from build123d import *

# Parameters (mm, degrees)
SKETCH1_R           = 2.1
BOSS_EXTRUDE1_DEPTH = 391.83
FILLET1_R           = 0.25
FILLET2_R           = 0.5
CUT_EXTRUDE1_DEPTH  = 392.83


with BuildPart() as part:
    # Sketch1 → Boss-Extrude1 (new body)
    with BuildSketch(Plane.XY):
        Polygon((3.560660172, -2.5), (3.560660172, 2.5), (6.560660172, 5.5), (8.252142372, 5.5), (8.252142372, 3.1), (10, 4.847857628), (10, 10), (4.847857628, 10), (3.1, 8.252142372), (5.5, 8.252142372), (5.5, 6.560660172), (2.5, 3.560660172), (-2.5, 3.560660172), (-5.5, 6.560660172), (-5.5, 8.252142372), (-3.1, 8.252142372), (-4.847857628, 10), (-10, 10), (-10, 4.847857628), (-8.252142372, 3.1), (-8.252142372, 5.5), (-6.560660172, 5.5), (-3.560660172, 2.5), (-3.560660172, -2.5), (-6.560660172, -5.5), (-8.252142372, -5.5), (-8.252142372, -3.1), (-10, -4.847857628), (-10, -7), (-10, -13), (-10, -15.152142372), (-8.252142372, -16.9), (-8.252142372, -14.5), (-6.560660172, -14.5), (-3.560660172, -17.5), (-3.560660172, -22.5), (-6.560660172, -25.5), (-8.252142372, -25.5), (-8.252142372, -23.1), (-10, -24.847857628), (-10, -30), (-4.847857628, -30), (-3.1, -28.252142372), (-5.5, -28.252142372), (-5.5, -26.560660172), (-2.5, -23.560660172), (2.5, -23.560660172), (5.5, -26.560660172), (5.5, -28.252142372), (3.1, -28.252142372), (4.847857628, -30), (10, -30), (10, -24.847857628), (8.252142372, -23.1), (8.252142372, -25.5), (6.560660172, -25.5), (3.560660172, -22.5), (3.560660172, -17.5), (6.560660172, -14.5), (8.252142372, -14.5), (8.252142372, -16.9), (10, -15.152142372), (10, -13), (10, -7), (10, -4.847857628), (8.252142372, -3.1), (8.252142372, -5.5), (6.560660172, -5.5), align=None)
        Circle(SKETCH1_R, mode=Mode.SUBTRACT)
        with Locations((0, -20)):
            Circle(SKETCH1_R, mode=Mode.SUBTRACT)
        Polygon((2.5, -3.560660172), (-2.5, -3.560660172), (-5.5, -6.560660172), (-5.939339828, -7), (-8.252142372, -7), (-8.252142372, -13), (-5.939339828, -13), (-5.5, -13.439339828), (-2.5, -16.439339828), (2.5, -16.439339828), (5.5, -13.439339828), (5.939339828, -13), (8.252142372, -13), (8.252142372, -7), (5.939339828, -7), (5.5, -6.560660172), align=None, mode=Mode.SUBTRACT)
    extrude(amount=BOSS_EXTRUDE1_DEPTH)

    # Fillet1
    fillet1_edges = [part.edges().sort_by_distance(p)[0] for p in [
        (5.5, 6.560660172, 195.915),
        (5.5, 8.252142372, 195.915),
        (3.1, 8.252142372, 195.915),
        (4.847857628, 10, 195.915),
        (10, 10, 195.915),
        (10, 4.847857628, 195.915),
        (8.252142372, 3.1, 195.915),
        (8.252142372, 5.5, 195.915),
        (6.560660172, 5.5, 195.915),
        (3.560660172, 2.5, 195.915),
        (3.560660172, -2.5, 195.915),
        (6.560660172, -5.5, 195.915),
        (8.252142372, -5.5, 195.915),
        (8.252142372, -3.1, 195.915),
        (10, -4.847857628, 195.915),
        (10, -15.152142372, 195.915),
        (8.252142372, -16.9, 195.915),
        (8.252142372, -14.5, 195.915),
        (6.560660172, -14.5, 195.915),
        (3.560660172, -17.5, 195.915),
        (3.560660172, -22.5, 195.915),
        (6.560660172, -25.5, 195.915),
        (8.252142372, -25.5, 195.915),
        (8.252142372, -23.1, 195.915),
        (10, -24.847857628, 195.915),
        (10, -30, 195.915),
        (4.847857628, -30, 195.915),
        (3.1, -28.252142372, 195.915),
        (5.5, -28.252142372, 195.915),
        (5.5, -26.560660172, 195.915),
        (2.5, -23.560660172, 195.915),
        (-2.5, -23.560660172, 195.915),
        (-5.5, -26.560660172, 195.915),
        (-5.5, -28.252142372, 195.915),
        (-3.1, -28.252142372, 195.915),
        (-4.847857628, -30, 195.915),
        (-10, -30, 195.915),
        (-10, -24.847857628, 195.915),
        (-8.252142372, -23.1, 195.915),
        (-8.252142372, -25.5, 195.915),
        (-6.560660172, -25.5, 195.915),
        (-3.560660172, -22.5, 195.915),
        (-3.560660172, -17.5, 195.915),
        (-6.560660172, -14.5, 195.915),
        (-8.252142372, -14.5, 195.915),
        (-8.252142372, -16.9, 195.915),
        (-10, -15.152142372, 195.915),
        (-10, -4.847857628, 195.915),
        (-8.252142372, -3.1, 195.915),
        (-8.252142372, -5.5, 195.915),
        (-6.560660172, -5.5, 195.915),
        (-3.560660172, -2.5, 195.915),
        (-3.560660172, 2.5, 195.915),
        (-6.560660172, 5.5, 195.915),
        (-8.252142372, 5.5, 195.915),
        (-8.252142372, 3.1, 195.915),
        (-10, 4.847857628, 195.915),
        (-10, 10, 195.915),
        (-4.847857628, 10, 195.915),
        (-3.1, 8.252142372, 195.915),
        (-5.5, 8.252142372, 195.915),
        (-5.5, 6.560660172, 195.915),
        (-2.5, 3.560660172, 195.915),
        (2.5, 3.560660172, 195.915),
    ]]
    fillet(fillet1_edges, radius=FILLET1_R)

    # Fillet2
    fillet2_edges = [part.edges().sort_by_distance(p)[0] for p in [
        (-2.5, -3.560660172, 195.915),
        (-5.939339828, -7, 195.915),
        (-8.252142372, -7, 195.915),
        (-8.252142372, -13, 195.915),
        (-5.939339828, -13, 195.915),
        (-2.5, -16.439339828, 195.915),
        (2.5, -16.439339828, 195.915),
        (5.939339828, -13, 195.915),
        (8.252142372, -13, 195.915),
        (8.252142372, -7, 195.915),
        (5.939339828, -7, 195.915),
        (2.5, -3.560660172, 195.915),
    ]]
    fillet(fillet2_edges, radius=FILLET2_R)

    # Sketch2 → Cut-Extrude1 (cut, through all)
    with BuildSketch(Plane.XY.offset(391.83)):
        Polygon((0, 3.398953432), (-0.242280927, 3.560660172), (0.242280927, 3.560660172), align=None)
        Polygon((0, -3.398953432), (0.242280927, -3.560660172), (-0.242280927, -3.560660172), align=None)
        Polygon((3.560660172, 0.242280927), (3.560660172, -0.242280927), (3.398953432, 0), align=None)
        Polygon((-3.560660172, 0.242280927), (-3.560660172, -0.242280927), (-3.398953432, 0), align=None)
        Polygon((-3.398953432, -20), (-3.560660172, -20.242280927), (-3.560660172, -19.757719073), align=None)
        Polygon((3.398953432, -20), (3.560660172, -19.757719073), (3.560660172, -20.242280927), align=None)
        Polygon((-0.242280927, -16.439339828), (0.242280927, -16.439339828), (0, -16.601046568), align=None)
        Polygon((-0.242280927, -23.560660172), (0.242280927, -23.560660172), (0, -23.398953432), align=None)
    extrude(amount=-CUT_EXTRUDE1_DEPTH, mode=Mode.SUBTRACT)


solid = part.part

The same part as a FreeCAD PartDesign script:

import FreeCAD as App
import Part
import Sketcher
Q = App.Units.Quantity


def edges_at(feature, points):
    """Names of the edges that pass closest to the given points."""
    edges = feature.Shape.Edges
    near = lambda p: min(range(len(edges)), key=lambda i: edges[i].distToShape(Part.Vertex(*p))[0])
    return sorted({f"Edge{near(p) + 1}" for p in points})


def add_polygon(sketch, points):
    """Adds a closed chain of lines whose ends are joined by coincident constraints."""
    first, n = sketch.GeometryCount, len(points)
    for a, b in zip(points, points[1:] + points[:1]):
        sketch.addGeometry(Part.LineSegment(App.Vector(*a, 0), App.Vector(*b, 0)), False)
    for i in range(n):
        sketch.addConstraint(Sketcher.Constraint("Coincident", first + i, 2, first + (i + 1) % n, 1))

doc = App.newDocument("Part")
body = doc.addObject("PartDesign::Body", "Body")

# Sketch on XY plane
sketch1 = body.newObject("Sketcher::SketchObject", "Sketch")
sketch1.AttachmentSupport = (doc.getObject("XY_Plane"), [""])
sketch1.MapMode = "FlatFace"
add_polygon(sketch1, [(3.6, -2.5), (3.6, 2.5), (6.6, 5.5), (8.3, 5.5), (8.3, 3.1), (10, 4.8), (10, 10), (4.8, 10), (3.1, 8.3), (5.5, 8.3), (5.5, 6.6), (2.5, 3.6), (-2.5, 3.6), (-5.5, 6.6), (-5.5, 8.3), (-3.1, 8.3), (-4.8, 10), (-10, 10), (-10, 4.8), (-8.3, 3.1), (-8.3, 5.5), (-6.6, 5.5), (-3.6, 2.5), (-3.6, -2.5), (-6.6, -5.5), (-8.3, -5.5), (-8.3, -3.1), (-10, -4.8), (-10, -15.2), (-8.3, -16.9), (-8.3, -14.5), (-6.6, -14.5), (-3.6, -17.5), (-3.6, -22.5), (-6.6, -25.5), (-8.3, -25.5), (-8.3, -23.1), (-10, -24.8), (-10, -30), (-4.8, -30), (-3.1, -28.3), (-5.5, -28.3), (-5.5, -26.6), (-2.5, -23.6), (2.5, -23.6), (5.5, -26.6), (5.5, -28.3), (3.1, -28.3), (4.8, -30), (10, -30), (10, -24.8), (8.3, -23.1), (8.3, -25.5), (6.6, -25.5), (3.6, -22.5), (3.6, -17.5), (6.6, -14.5), (8.3, -14.5), (8.3, -16.9), (10, -15.2), (10, -4.8), (8.3, -3.1), (8.3, -5.5), (6.6, -5.5)])  # lines 0-63
sketch1.addGeometry(Part.Circle(App.Vector(0, -20, 0), App.Vector(0, 0, 1), 2.1), False)  # 64
add_polygon(sketch1, [(-2.5, -3.6), (2.5, -3.6), (5.9, -7), (8.3, -7), (8.3, -13), (5.9, -13), (2.5, -16.4), (-2.5, -16.4), (-5.9, -13), (-8.3, -13), (-8.3, -7), (-5.9, -7)])  # lines 65-76
sketch1.addGeometry(Part.Circle(App.Vector(0, 0, 0), App.Vector(0, 0, 1), 2.1), False)  # 77
sketch1.addConstraint([
    Sketcher.Constraint("Vertical", 0),
    Sketcher.Constraint("Horizontal", 2),
    Sketcher.Constraint("Vertical", 3),
    Sketcher.Constraint("Vertical", 5),
    Sketcher.Constraint("Horizontal", 6),
    Sketcher.Constraint("Horizontal", 8),
    Sketcher.Constraint("Vertical", 9),
    Sketcher.Constraint("Horizontal", 11),
    Sketcher.Constraint("Vertical", 13),
    Sketcher.Constraint("Horizontal", 14),
    Sketcher.Constraint("Horizontal", 16),
    Sketcher.Constraint("Vertical", 17),
    Sketcher.Constraint("Vertical", 19),
    Sketcher.Constraint("Horizontal", 20),
    Sketcher.Constraint("Vertical", 22),
    Sketcher.Constraint("Horizontal", 24),
    Sketcher.Constraint("Vertical", 25),
    Sketcher.Constraint("Vertical", 27),
    Sketcher.Constraint("Vertical", 29),
    Sketcher.Constraint("Horizontal", 30),
    Sketcher.Constraint("Vertical", 32),
    Sketcher.Constraint("Horizontal", 34),
    Sketcher.Constraint("Vertical", 35),
    Sketcher.Constraint("Vertical", 37),
    Sketcher.Constraint("Horizontal", 38),
    Sketcher.Constraint("Horizontal", 40),
    Sketcher.Constraint("Vertical", 41),
    Sketcher.Constraint("Horizontal", 43),
    Sketcher.Constraint("Vertical", 45),
    Sketcher.Constraint("Horizontal", 46),
    Sketcher.Constraint("Horizontal", 48),
    Sketcher.Constraint("Vertical", 49),
    Sketcher.Constraint("Vertical", 51),
    Sketcher.Constraint("Horizontal", 52),
    Sketcher.Constraint("Vertical", 54),
    Sketcher.Constraint("Horizontal", 56),
    Sketcher.Constraint("Vertical", 57),
    Sketcher.Constraint("Vertical", 59),
    Sketcher.Constraint("Vertical", 61),
    Sketcher.Constraint("Horizontal", 62),
    Sketcher.Constraint("Horizontal", 65),
    Sketcher.Constraint("Horizontal", 67),
    Sketcher.Constraint("Vertical", 68),
    Sketcher.Constraint("Horizontal", 69),
    Sketcher.Constraint("Horizontal", 71),
    Sketcher.Constraint("Horizontal", 73),
    Sketcher.Constraint("Vertical", 74),
    Sketcher.Constraint("Horizontal", 75),
    Sketcher.Constraint("Coincident", 77, 3, -1, 1),
    Sketcher.Constraint("Equal", 64, 77),
    Sketcher.Constraint("Symmetric", 0, 2, 22, 2, -1, 1),
    Sketcher.Constraint("Symmetric", 1, 2, 23, 2, -1, 1),
    Sketcher.Constraint("Symmetric", 3, 2, 25, 2, -1, 1),
    Sketcher.Constraint("Symmetric", 4, 2, 26, 2, -1, 1),
    Sketcher.Constraint("Symmetric", 17, 2, 59, 2, -1, 1),
    Sketcher.Constraint("Symmetric", 18, 2, 60, 2, -1, 1),
    Sketcher.Constraint("Symmetric", 20, 2, 62, 2, -1, 1),
    Sketcher.Constraint("Symmetric", 11, 2, 65, 2, -1, 1),
    Sketcher.Constraint("Symmetric", 9, 2, 12, 2, -2),
    Sketcher.Constraint("Symmetric", 7, 2, 14, 2, -2),
    Sketcher.Constraint("Symmetric", 6, 2, 15, 2, -2),
    Sketcher.Constraint("Symmetric", 4, 2, 17, 2, -2),
    Sketcher.Constraint("Symmetric", 3, 2, 18, 2, -2),
    Sketcher.Constraint("Symmetric", 1, 2, 20, 2, -2),
    Sketcher.Constraint("Symmetric", 41, 2, 44, 2, -2),
    Sketcher.Constraint("Symmetric", 39, 2, 46, 2, -2),
    Sketcher.Constraint("Symmetric", 38, 2, 47, 2, -2),
    Sketcher.Constraint("Symmetric", 36, 2, 49, 2, -2),
    Sketcher.Constraint("Symmetric", 35, 2, 50, 2, -2),
    Sketcher.Constraint("Symmetric", 33, 2, 52, 2, -2),
    Sketcher.Constraint("Symmetric", 32, 2, 53, 2, -2),
    Sketcher.Constraint("Symmetric", 30, 2, 55, 2, -2),
    Sketcher.Constraint("Symmetric", 28, 2, 57, 2, -2),
    Sketcher.Constraint("Symmetric", 69, 2, 72, 2, -2),
    Sketcher.Constraint("Symmetric", 67, 2, 74, 2, -2),
    Sketcher.Constraint("PointOnObject", 64, 3, -2),
    Sketcher.Constraint("Parallel", 1, 4),
    Sketcher.Constraint("Parallel", 4, 7),
    Sketcher.Constraint("Parallel", 7, 10),
    Sketcher.Constraint("Perpendicular", 10, 12),
    Sketcher.Constraint("Parallel", 12, 15),
    Sketcher.Constraint("Parallel", 18, 21),
    Sketcher.Constraint("Perpendicular", 26, 28),
    Sketcher.Constraint("Parallel", 28, 31),
    Sketcher.Constraint("Perpendicular", 31, 33),
    Sketcher.Constraint("Parallel", 33, 36),
    Sketcher.Constraint("Parallel", 36, 39),
    Sketcher.Constraint("Parallel", 39, 42),
    Sketcher.Constraint("Perpendicular", 42, 44),
    Sketcher.Constraint("Perpendicular", 53, 55),
    Sketcher.Constraint("Parallel", 55, 58),
    Sketcher.Constraint("Parallel", 60, 63),
    Sketcher.Constraint("Parallel", 63, 66),
    Sketcher.Constraint("Perpendicular", 66, 70),
    Sketcher.Constraint("Perpendicular", 70, 72),
    Sketcher.Constraint("Perpendicular", 72, 76),
    Sketcher.Constraint("Vertical", 25, 2, 28, 2),
    Sketcher.Constraint("Vertical", 23, 2, 30, 2),
    Sketcher.Constraint("Vertical", 22, 2, 31, 2),
    Sketcher.Constraint("Vertical", 30, 2, 33, 2),
    Sketcher.Constraint("Vertical", 29, 2, 34, 2),
    Sketcher.Constraint("Vertical", 27, 2, 36, 2),
    Sketcher.Constraint("Vertical", 15, 2, 38, 2),
    Sketcher.Constraint("Vertical", 14, 2, 39, 2),
    Sketcher.Constraint("Vertical", 13, 2, 40, 2),
    Sketcher.Constraint("Vertical", 11, 2, 42, 2),
    Sketcher.Constraint("Vertical", 61, 2, 67, 2),
    Sketcher.Constraint("Vertical", 66, 2, 69, 2),
    Sketcher.Constraint("Vertical", 65, 2, 70, 2),
    Sketcher.Constraint("Vertical", 72, 2, 75, 2),
    Sketcher.Constraint("Equal", 71, 0),
    Sketcher.Constraint("Equal", 46, 3),
    Sketcher.Constraint("Equal", 48, 5),
    Sketcher.Constraint("Equal", 62, 9),
    Sketcher.Constraint("Equal", 25, 29),
    Sketcher.Constraint("Equal", 22, 32),
    Sketcher.Constraint("Equal", 29, 35),
    Sketcher.Constraint("Equal", 17, 37),
    Sketcher.Constraint("Equal", 13, 41),
    Sketcher.Constraint("Equal", 4, 7),
    Sketcher.Constraint("Equal", 1, 10),
    Sketcher.Constraint("Diameter", 64, Q("4.2 mm")),
    Sketcher.Constraint("DistanceX", 11, 2, 11, 1, Q("5 mm")),
    Sketcher.Constraint("DistanceY", 68, 2, 68, 1, Q("6 mm")),
    Sketcher.Constraint("DistanceX", 8, 1, 8, 2, Q("2.4 mm")),
    Sketcher.Constraint("DistanceY", 64, 3, -1, 1, Q("20 mm")),
    Sketcher.Constraint("DistanceX", -1, 1, 4, 2, Q("10 mm")),
    Sketcher.Constraint("DistanceY", 37, 2, -1, 1, Q("30 mm")),
    Sketcher.Constraint("DistanceY", 66, 2, -1, 1, Q("7 mm")),
    Sketcher.Constraint("DistanceY", -1, 1, 1, 2, Q("5.5 mm")),
    Sketcher.Constraint("Distance", 66, Q("4.863961 mm")),
    Sketcher.Constraint("DistanceX", 2, 1, 2, 2, Q("1.691482 mm")),
])
pad1 = body.newObject("PartDesign::Pad", "Pad")
pad1.Profile = sketch1
pad1.Length = 391.83
doc.recompute()

fillet = body.newObject("PartDesign::Fillet", "Fillet")
fillet.Base = (pad1, edges_at(pad1, [
    (5.5, 6.561, 195.915),
    (5.5, 8.252, 195.915),
    (3.1, 8.252, 195.915),
    (4.848, 10, 195.915),
    (10, 10, 195.915),
    (10, 4.848, 195.915),
    (8.252, 3.1, 195.915),
    (8.252, 5.5, 195.915),
    (6.561, 5.5, 195.915),
    (3.561, 2.5, 195.915),
    (3.561, -2.5, 195.915),
    (6.561, -5.5, 195.915),
    (8.252, -5.5, 195.915),
    (8.252, -3.1, 195.915),
    (10, -4.848, 195.915),
    (10, -15.152, 195.915),
    (8.252, -16.9, 195.915),
    (8.252, -14.5, 195.915),
    (6.561, -14.5, 195.915),
    (3.561, -17.5, 195.915),
    (3.561, -22.5, 195.915),
    (6.561, -25.5, 195.915),
    (8.252, -25.5, 195.915),
    (8.252, -23.1, 195.915),
    (10, -24.848, 195.915),
    (10, -30, 195.915),
    (4.848, -30, 195.915),
    (3.1, -28.252, 195.915),
    (5.5, -28.252, 195.915),
    (5.5, -26.561, 195.915),
    (2.5, -23.561, 195.915),
    (-2.5, -23.561, 195.915),
    (-5.5, -26.561, 195.915),
    (-5.5, -28.252, 195.915),
    (-3.1, -28.252, 195.915),
    (-4.848, -30, 195.915),
    (-10, -30, 195.915),
    (-10, -24.848, 195.915),
    (-8.252, -23.1, 195.915),
    (-8.252, -25.5, 195.915),
    (-6.561, -25.5, 195.915),
    (-3.561, -22.5, 195.915),
    (-3.561, -17.5, 195.915),
    (-6.561, -14.5, 195.915),
    (-8.252, -14.5, 195.915),
    (-8.252, -16.9, 195.915),
    (-10, -15.152, 195.915),
    (-10, -4.848, 195.915),
    (-8.252, -3.1, 195.915),
    (-8.252, -5.5, 195.915),
    (-6.561, -5.5, 195.915),
    (-3.561, -2.5, 195.915),
    (-3.561, 2.5, 195.915),
    (-6.561, 5.5, 195.915),
    (-8.252, 5.5, 195.915),
    (-8.252, 3.1, 195.915),
    (-10, 4.848, 195.915),
    (-10, 10, 195.915),
    (-4.848, 10, 195.915),
    (-3.1, 8.252, 195.915),
    (-5.5, 8.252, 195.915),
    (-5.5, 6.561, 195.915),
    (-2.5, 3.561, 195.915),
    (2.5, 3.561, 195.915),
]))
fillet.Radius = 0.25
doc.recompute()

fillet2 = body.newObject("PartDesign::Fillet", "Fillet001")
fillet2.Base = (fillet, edges_at(fillet, [
    (-2.5, -3.561, 195.915),
    (-5.939, -7, 195.915),
    (-8.252, -7, 195.915),
    (-8.252, -13, 195.915),
    (-5.939, -13, 195.915),
    (-2.5, -16.439, 195.915),
    (2.5, -16.439, 195.915),
    (5.939, -13, 195.915),
    (8.252, -13, 195.915),
    (8.252, -7, 195.915),
    (5.939, -7, 195.915),
    (2.5, -3.561, 195.915),
]))
fillet2.Radius = 0.5

# Sketch on XY plane
sketch2 = body.newObject("Sketcher::SketchObject", "Sketch001")
sketch2.AttachmentSupport = (doc.getObject("XY_Plane"), [""])
sketch2.MapMode = "FlatFace"
sketch2.AttachmentOffset = App.Placement(App.Vector(0, 0, 391.83), App.Rotation())
add_polygon(sketch2, [(-0.24, 3.56), (0, 3.4), (0.24, 3.56)])  # lines 0-2
add_polygon(sketch2, [(0.24, -3.56), (0, -3.4), (-0.24, -3.56)])  # lines 3-5
add_polygon(sketch2, [(3.56, -0.24), (3.56, 0.24), (3.4, 0)])  # lines 6-8
add_polygon(sketch2, [(-3.56, 0.24), (-3.56, -0.24), (-3.4, 0)])  # lines 9-11
add_polygon(sketch2, [(-3.56, -20.24), (-3.4, -20), (-3.56, -19.76)])  # lines 12-14
add_polygon(sketch2, [(3.56, -19.76), (3.4, -20), (3.56, -20.24)])  # lines 15-17
add_polygon(sketch2, [(0.24, -16.44), (-0.24, -16.44), (0, -16.6)])  # lines 18-20
add_polygon(sketch2, [(-0.24, -23.56), (0.24, -23.56), (0, -23.4)])  # lines 21-23
sketch2.addConstraint([
    Sketcher.Constraint("Horizontal", 2),
    Sketcher.Constraint("Horizontal", 5),
    Sketcher.Constraint("Vertical", 6),
    Sketcher.Constraint("Vertical", 9),
    Sketcher.Constraint("Vertical", 14),
    Sketcher.Constraint("Vertical", 17),
    Sketcher.Constraint("Horizontal", 18),
    Sketcher.Constraint("Horizontal", 21),
    Sketcher.Constraint("Symmetric", 0, 2, 3, 2, -1, 1),
    Sketcher.Constraint("Symmetric", 1, 2, 4, 2, -1, 1),
    Sketcher.Constraint("Symmetric", 6, 2, 9, 2, -1, 1),
    Sketcher.Constraint("Symmetric", 7, 2, 10, 2, -1, 1),
    Sketcher.Constraint("Symmetric", 12, 2, 15, 2, -2),
    Sketcher.Constraint("Symmetric", 14, 2, 16, 2, -2),
    Sketcher.Constraint("PointOnObject", 0, 2, -2),
    Sketcher.Constraint("PointOnObject", 7, 2, -1),
    Sketcher.Constraint("PointOnObject", 19, 2, -2),
    Sketcher.Constraint("PointOnObject", 22, 2, -2),
    Sketcher.Constraint("Parallel", 0, 3),
    Sketcher.Constraint("Perpendicular", 3, 7),
    Sketcher.Constraint("Perpendicular", 4, 8),
    Sketcher.Constraint("Parallel", 8, 11),
    Sketcher.Constraint("Parallel", 10, 12),
    Sketcher.Constraint("Parallel", 11, 13),
    Sketcher.Constraint("Parallel", 12, 15),
    Sketcher.Constraint("Parallel", 13, 16),
    Sketcher.Constraint("Perpendicular", 15, 19),
    Sketcher.Constraint("Perpendicular", 16, 20),
    Sketcher.Constraint("Parallel", 19, 22),
    Sketcher.Constraint("Parallel", 20, 23),
    Sketcher.Constraint("Vertical", 10, 2, 12, 2),
    Sketcher.Constraint("Vertical", 11, 2, 13, 2),
    Sketcher.Constraint("Vertical", 4, 2, 18, 2),
    Sketcher.Constraint("Vertical", 20, 2, 21, 2),
    Sketcher.Constraint("Equal", 21, 6),
    Sketcher.Constraint("DistanceY", 12, 2, -1, 1, Q("20 mm")),
    Sketcher.Constraint("DistanceX", 2, 2, 2, 1, Q("0.484562 mm")),
    Sketcher.Constraint("Distance", 0, Q("0.291289 mm")),
    Sketcher.Constraint("DistanceY", -1, 1, 1, 2, Q("3.56066 mm")),
    Sketcher.Constraint("DistanceX", -1, 1, 6, 2, Q("3.56066 mm")),
    Sketcher.Constraint("DistanceY", 18, 2, -1, 1, Q("16.43934 mm")),
    Sketcher.Constraint("DistanceY", 21, 2, -1, 1, Q("23.56066 mm")),
])
pocket1 = body.newObject("PartDesign::Pocket", "Pocket")
pocket1.Profile = sketch2
pocket1.Type = "ThroughAll"

doc.recompute()
